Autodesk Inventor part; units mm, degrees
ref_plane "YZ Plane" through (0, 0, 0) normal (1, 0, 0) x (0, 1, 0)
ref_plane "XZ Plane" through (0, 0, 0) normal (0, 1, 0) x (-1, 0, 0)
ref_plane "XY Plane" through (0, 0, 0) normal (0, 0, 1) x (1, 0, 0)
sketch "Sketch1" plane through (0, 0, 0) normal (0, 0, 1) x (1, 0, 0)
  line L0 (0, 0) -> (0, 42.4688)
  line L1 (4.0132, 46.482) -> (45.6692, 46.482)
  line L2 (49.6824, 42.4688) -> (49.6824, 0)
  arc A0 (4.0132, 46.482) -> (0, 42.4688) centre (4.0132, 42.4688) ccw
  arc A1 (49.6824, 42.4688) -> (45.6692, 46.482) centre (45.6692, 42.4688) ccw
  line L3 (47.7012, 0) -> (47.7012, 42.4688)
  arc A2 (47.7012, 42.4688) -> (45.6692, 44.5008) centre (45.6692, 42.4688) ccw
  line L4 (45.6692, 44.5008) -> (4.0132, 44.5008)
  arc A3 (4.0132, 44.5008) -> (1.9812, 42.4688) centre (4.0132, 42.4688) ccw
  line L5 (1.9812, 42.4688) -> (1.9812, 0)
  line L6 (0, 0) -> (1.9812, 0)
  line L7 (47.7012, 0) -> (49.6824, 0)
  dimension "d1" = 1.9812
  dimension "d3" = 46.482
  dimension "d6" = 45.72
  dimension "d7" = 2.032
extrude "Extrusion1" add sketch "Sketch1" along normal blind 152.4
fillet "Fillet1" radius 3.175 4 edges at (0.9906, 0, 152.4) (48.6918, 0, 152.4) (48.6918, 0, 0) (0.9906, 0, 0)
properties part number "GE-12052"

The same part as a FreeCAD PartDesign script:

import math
import FreeCAD as App
import Part
import Sketcher
from FreeCAD import Vector
Q = App.Units.Quantity


def edges_at(feature, points):
    """Names of the edges that pass closest to the given points."""
    edges = feature.Shape.Edges
    near = lambda p: min(range(len(edges)), key=lambda i: edges[i].distToShape(Part.Vertex(*p))[0])
    return sorted({f"Edge{near(p) + 1}" for p in points})

doc = App.newDocument("Part")
body = doc.addObject("PartDesign::Body", "Body")

# Sketch on XY plane
sketch1 = body.newObject("Sketcher::SketchObject", "Sketch")
sketch1.AttachmentSupport = (doc.getObject("XY_Plane"), [""])
sketch1.MapMode = "FlatFace"
sketch1.addGeometry(Part.LineSegment(Vector(0, 42.5, 0), Vector(0, 0, 0)), False)
sketch1.addGeometry(Part.LineSegment(Vector(0, 0, 0), Vector(2, 0, 0)), False)
sketch1.addGeometry(Part.LineSegment(Vector(2, 0, 0), Vector(2, 42.5, 0)), False)
sketch1.addGeometry(Part.ArcOfCircle(Part.Circle(Vector(4, 42.5, 0), Vector(0, 0, 1), 2), math.radians(90), math.radians(180)), False)
sketch1.addGeometry(Part.LineSegment(Vector(4, 44.5, 0), Vector(45.7, 44.5, 0)), False)
sketch1.addGeometry(Part.ArcOfCircle(Part.Circle(Vector(45.7, 42.5, 0), Vector(0, 0, 1), 2), math.radians(0), math.radians(90)), False)
sketch1.addGeometry(Part.LineSegment(Vector(47.7, 42.5, 0), Vector(47.7, 0, 0)), False)
sketch1.addGeometry(Part.LineSegment(Vector(47.7, 0, 0), Vector(49.7, 0, 0)), False)
sketch1.addGeometry(Part.LineSegment(Vector(49.7, 0, 0), Vector(49.7, 42.5, 0)), False)
sketch1.addGeometry(Part.ArcOfCircle(Part.Circle(Vector(45.7, 42.5, 0), Vector(0, 0, 1), 4), math.radians(0), math.radians(90)), False)
sketch1.addGeometry(Part.LineSegment(Vector(45.7, 46.5, 0), Vector(4, 46.5, 0)), False)
sketch1.addGeometry(Part.ArcOfCircle(Part.Circle(Vector(4, 42.5, 0), Vector(0, 0, 1), 4), math.radians(90), math.radians(180)), False)
sketch1.addConstraint(Sketcher.Constraint("Coincident", 0, 2, 1, 1))
sketch1.addConstraint(Sketcher.Constraint("Coincident", 1, 2, 2, 1))
sketch1.addConstraint(Sketcher.Constraint("Tangent", 2, 2, 3, 2))
sketch1.addConstraint(Sketcher.Constraint("Tangent", 3, 1, 4, 1))
sketch1.addConstraint(Sketcher.Constraint("Tangent", 4, 2, 5, 2))
sketch1.addConstraint(Sketcher.Constraint("Tangent", 5, 1, 6, 1))
sketch1.addConstraint(Sketcher.Constraint("Coincident", 6, 2, 7, 1))
sketch1.addConstraint(Sketcher.Constraint("Coincident", 7, 2, 8, 1))
sketch1.addConstraint(Sketcher.Constraint("Tangent", 8, 2, 9, 1))
sketch1.addConstraint(Sketcher.Constraint("Tangent", 9, 2, 10, 1))
sketch1.addConstraint(Sketcher.Constraint("Tangent", 10, 2, 11, 1))
sketch1.addConstraint(Sketcher.Constraint("Tangent", 11, 2, 0, 1))
sketch1.addConstraint(Sketcher.Constraint("Vertical", 0))
sketch1.addConstraint(Sketcher.Constraint("Horizontal", 1))
sketch1.addConstraint(Sketcher.Constraint("Vertical", 2))
sketch1.addConstraint(Sketcher.Constraint("Horizontal", 4))
sketch1.addConstraint(Sketcher.Constraint("Vertical", 6))
sketch1.addConstraint(Sketcher.Constraint("Horizontal", 7))
sketch1.addConstraint(Sketcher.Constraint("Vertical", 8))
sketch1.addConstraint(Sketcher.Constraint("Horizontal", 10))
sketch1.addConstraint(Sketcher.Constraint("Coincident", 0, 2, -1, 1))
sketch1.addConstraint(Sketcher.Constraint("Coincident", 9, 3, 5, 3))
sketch1.addConstraint(Sketcher.Constraint("Coincident", 11, 3, 3, 3))
sketch1.addConstraint(Sketcher.Constraint("Equal", 3, 5))
sketch1.addConstraint(Sketcher.Constraint("PointOnObject", 6, 2, -1))
sketch1.addConstraint(Sketcher.Constraint("Radius", 3, Q("0.08 in")))
sketch1.addConstraint(Sketcher.Constraint("DistanceX", 1, 2, 6, 2, Q("1.8 in")))
sketch1.addConstraint(Sketcher.Constraint("DistanceX", 1, 1, 1, 2, Q("0.078 in")))
sketch1.addConstraint(Sketcher.Constraint("DistanceY", -1, 1, 9, 2, Q("1.83 in")))
pad1 = body.newObject("PartDesign::Pad", "Pad")
pad1.Profile = sketch1
pad1.Length = Q("6 in")
doc.recompute()

fillet = body.newObject("PartDesign::Fillet", "Fillet")
fillet.Base = (pad1, edges_at(pad1, [
    (0.991, 0, 152.4),
    (48.692, 0, 152.4),
    (48.692, 0, 0),
    (0.991, 0, 0),
]))
fillet.Radius = Q("0.125 in")

doc.recompute()
